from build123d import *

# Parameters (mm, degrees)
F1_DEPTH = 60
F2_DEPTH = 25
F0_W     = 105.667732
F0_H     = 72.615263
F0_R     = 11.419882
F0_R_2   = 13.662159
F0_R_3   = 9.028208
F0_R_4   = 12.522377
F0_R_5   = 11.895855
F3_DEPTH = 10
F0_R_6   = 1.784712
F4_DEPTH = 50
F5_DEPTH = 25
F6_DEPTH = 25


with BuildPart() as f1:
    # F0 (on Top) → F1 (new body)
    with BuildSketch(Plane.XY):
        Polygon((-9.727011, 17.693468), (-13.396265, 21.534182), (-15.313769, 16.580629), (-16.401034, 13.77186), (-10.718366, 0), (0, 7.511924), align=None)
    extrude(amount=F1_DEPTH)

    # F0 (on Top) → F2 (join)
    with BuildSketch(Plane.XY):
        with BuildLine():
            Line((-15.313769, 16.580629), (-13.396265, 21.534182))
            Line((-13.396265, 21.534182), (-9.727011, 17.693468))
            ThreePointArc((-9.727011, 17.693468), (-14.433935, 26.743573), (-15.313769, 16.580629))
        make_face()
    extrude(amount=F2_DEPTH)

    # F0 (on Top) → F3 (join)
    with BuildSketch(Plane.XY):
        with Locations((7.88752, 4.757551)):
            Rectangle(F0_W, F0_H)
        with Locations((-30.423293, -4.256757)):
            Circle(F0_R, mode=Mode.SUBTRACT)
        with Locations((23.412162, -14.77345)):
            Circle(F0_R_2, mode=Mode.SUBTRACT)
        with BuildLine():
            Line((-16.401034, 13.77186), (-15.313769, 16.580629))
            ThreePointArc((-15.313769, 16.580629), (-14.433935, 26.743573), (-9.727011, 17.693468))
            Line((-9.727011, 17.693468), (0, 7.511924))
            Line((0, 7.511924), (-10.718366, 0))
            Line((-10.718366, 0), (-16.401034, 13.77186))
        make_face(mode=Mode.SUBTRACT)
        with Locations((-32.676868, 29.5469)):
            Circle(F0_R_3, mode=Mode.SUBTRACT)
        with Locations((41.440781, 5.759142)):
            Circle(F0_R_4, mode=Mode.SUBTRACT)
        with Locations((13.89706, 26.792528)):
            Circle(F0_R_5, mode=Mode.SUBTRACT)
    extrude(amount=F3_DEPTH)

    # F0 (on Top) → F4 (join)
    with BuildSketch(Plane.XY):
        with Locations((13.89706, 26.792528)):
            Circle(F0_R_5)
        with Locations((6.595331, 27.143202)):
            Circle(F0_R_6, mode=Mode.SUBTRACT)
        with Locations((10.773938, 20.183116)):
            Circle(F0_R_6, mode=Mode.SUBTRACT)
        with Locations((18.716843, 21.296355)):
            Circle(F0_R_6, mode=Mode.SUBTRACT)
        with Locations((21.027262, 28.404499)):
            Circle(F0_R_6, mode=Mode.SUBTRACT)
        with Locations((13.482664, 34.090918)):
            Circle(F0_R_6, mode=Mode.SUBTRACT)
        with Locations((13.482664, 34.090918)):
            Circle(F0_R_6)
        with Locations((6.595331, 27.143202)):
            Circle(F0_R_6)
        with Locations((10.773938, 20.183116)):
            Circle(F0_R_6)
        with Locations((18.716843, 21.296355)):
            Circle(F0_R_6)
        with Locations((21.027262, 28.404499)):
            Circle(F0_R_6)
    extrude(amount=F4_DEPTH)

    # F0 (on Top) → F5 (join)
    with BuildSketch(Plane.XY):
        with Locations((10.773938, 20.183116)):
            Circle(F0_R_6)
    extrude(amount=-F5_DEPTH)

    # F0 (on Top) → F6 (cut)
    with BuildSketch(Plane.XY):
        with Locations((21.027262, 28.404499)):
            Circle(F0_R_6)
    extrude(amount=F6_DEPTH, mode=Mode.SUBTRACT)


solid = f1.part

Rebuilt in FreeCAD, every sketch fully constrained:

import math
import FreeCAD as App
import Part
import Sketcher
from FreeCAD import Vector
Q = App.Units.Quantity


def add_polygon(sketch, points):
    """Adds a closed chain of lines whose ends are joined by coincident constraints."""
    first, n = sketch.GeometryCount, len(points)
    for a, b in zip(points, points[1:] + points[:1]):
        sketch.addGeometry(Part.LineSegment(App.Vector(*a, 0), App.Vector(*b, 0)), False)
    for i in range(n):
        sketch.addConstraint(Sketcher.Constraint("Coincident", first + i, 2, first + (i + 1) % n, 1))

doc = App.newDocument("Part")
body = doc.addObject("PartDesign::Body", "Body")

# Sketch on XY plane
sketch1 = doc.addObject("Sketcher::SketchObject", "Sketch")
body.addObject(sketch1)
sketch1.AttachmentSupport = (doc.XY_Plane, [""])
sketch1.MapMode = "FlatFace"
add_polygon(sketch1, [(-9.727011, 17.693468), (-13.396265, 21.534182), (-15.313769, 16.580629), (-16.401034, 13.77186), (-10.718366, 0), (0, 7.511924)])  # lines 0-5
sketch1.addConstraint(Sketcher.Constraint("PointOnObject", 3, 2, -1))
sketch1.addConstraint(Sketcher.Constraint("PointOnObject", 4, 2, -2))
sketch1.addConstraint(Sketcher.Constraint("Parallel", 1, 2))
sketch1.addConstraint(Sketcher.Constraint("Parallel", 0, 5))
sketch1.addConstraint(Sketcher.Constraint("Equal", 0, 1))
sketch1.addConstraint(Sketcher.Constraint("DistanceX", 0, 2, 3, 2, Q("2.677899 mm")))
sketch1.addConstraint(Sketcher.Constraint("DistanceX", 1, 2, -1, 1, Q("15.313769 mm")))
sketch1.addConstraint(Sketcher.Constraint("DistanceY", -1, 1, 1, 2, Q("16.580629 mm")))
sketch1.addConstraint(Sketcher.Constraint("DistanceY", -1, 1, 2, 2, Q("13.77186 mm")))
sketch1.addConstraint(Sketcher.Constraint("DistanceX", 5, 2, -1, 1, Q("9.727011 mm")))
sketch1.addConstraint(Sketcher.Constraint("DistanceX", 2, 2, 0, 2, Q("3.004769 mm")))
sketch1.addConstraint(Sketcher.Constraint("DistanceY", 4, 2, 0, 2, Q("14.022258 mm")))
pad1 = doc.addObject("PartDesign::Pad", "Pad")
body.addObject(pad1)
pad1.Profile = sketch1
pad1.Length = 60

# Sketch on XY plane
sketch2 = doc.addObject("Sketcher::SketchObject", "Sketch001")
body.addObject(sketch2)
sketch2.AttachmentSupport = (doc.XY_Plane, [""])
sketch2.MapMode = "FlatFace"
sketch2.addGeometry(Part.LineSegment(Vector(-15.313769, 16.580629, 0), Vector(-13.396265, 21.534182, 0)), False)
sketch2.addGeometry(Part.LineSegment(Vector(-13.396265, 21.534182, 0), Vector(-9.727011, 17.693468, 0)), False)
sketch2.addGeometry(Part.ArcOfCircle(Part.Circle(Vector(-13.396265, 21.534182, 0), Vector(0, 0, 1), 5.311733), math.radians(-46.307894), math.radians(248.838745)), False)
sketch2.addConstraint(Sketcher.Constraint("Coincident", 0, 2, 1, 1))
sketch2.addConstraint(Sketcher.Constraint("Coincident", 1, 2, 2, 1))
sketch2.addConstraint(Sketcher.Constraint("Coincident", 2, 2, 0, 1))
sketch2.addConstraint(Sketcher.Constraint("Coincident", 0, 2, 2, 3))
sketch2.addConstraint(Sketcher.Constraint("Radius", 2, Q("5.311733 mm")))
sketch2.addConstraint(Sketcher.Constraint("DistanceX", 1, 2, -1, 1, Q("9.727011 mm")))
sketch2.addConstraint(Sketcher.Constraint("DistanceX", 2, 2, -1, 1, Q("15.313769 mm")))
sketch2.addConstraint(Sketcher.Constraint("DistanceY", -1, 1, 2, 2, Q("16.580629 mm")))
sketch2.addConstraint(Sketcher.Constraint("DistanceY", 2, 2, 1, 2, Q("1.112839 mm")))
pad2 = doc.addObject("PartDesign::Pad", "Pad001")
body.addObject(pad2)
pad2.Profile = sketch2
pad2.Length = 25

# Sketch on XY plane
sketch3 = doc.addObject("Sketcher::SketchObject", "Sketch002")
body.addObject(sketch3)
sketch3.AttachmentSupport = (doc.XY_Plane, [""])
sketch3.MapMode = "FlatFace"
add_polygon(sketch3, [(-44.946346, 41.065182), (-44.946346, -31.55008), (60.721386, -31.55008), (60.721386, 41.065182)])  # lines 0-3
sketch3.addGeometry(Part.Circle(Vector(-30.423293, -4.256757, 0), Vector(0, 0, 1), 11.419882), False)  # 4
sketch3.addGeometry(Part.Circle(Vector(23.412162, -14.77345, 0), Vector(0, 0, 1), 13.662159), False)  # 5
sketch3.addGeometry(Part.LineSegment(Vector(-10.718366, 0, 0), Vector(-16.401034, 13.77186, 0)), False)  # 6
sketch3.addGeometry(Part.LineSegment(Vector(-16.401034, 13.77186, 0), Vector(-15.313769, 16.580629, 0)), False)  # 7
sketch3.addGeometry(Part.ArcOfCircle(Part.Circle(Vector(-13.396265, 21.534182, 0), Vector(0, 0, 1), 5.311733), math.radians(-46.307894), math.radians(248.838745)), False)  # 8
sketch3.addGeometry(Part.LineSegment(Vector(-9.727011, 17.693468, 0), Vector(0, 7.511924, 0)), False)  # 9
sketch3.addGeometry(Part.LineSegment(Vector(0, 7.511924, 0), Vector(-10.718366, 0, 0)), False)  # 10
sketch3.addGeometry(Part.Circle(Vector(-32.676868, 29.5469, 0), Vector(0, 0, 1), 9.028208), False)  # 11
sketch3.addGeometry(Part.Circle(Vector(41.440781, 5.759142, 0), Vector(0, 0, 1), 12.522377), False)  # 12
sketch3.addGeometry(Part.Circle(Vector(13.89706, 26.792528, 0), Vector(0, 0, 1), 11.895855), False)  # 13
sketch3.addConstraint(Sketcher.Constraint("Coincident", 6, 2, 7, 1))
sketch3.addConstraint(Sketcher.Constraint("Coincident", 7, 2, 8, 2))
sketch3.addConstraint(Sketcher.Constraint("Coincident", 8, 1, 9, 1))
sketch3.addConstraint(Sketcher.Constraint("Coincident", 9, 2, 10, 1))
sketch3.addConstraint(Sketcher.Constraint("Coincident", 10, 2, 6, 1))
sketch3.addConstraint(Sketcher.Constraint("Vertical", 0))
sketch3.addConstraint(Sketcher.Constraint("Horizontal", 1))
sketch3.addConstraint(Sketcher.Constraint("Vertical", 2))
sketch3.addConstraint(Sketcher.Constraint("Horizontal", 3))
sketch3.addConstraint(Sketcher.Constraint("PointOnObject", 9, 2, -2))
sketch3.addConstraint(Sketcher.Constraint("PointOnObject", 10, 2, -1))
sketch3.addConstraint(Sketcher.Constraint("Diameter", 5, Q("27.324318 mm")))
sketch3.addConstraint(Sketcher.Constraint("Diameter", 13, Q("23.79171 mm")))
sketch3.addConstraint(Sketcher.Constraint("Diameter", 4, Q("22.839764 mm")))
sketch3.addConstraint(Sketcher.Constraint("Diameter", 11, Q("18.056416 mm")))
sketch3.addConstraint(Sketcher.Constraint("Diameter", 12, Q("25.044754 mm")))
sketch3.addConstraint(Sketcher.Constraint("Radius", 8, Q("5.311733 mm")))
sketch3.addConstraint(Sketcher.Constraint("DistanceY", 8, 3, 2, 2, Q("19.531 mm")))
sketch3.addConstraint(Sketcher.Constraint("DistanceX", 1, 1, 1, 2, Q("105.667732 mm")))
sketch3.addConstraint(Sketcher.Constraint("DistanceY", -1, 1, 11, 3, Q("29.5469 mm")))
sketch3.addConstraint(Sketcher.Constraint("DistanceY", 4, 3, 12, 3, Q("10.015899 mm")))
sketch3.addConstraint(Sketcher.Constraint("DistanceX", 13, 3, 5, 3, Q("9.515102 mm")))
sketch3.addConstraint(Sketcher.Constraint("DistanceX", 11, 3, 7, 2, Q("17.363099 mm")))
sketch3.addConstraint(Sketcher.Constraint("DistanceY", 7, 2, 13, 3, Q("10.211899 mm")))
sketch3.addConstraint(Sketcher.Constraint("DistanceY", 0, 2, 0, 1, Q("72.615263 mm")))
sketch3.addConstraint(Sketcher.Constraint("DistanceX", -1, 1, 5, 3, Q("23.412162 mm")))
sketch3.addConstraint(Sketcher.Constraint("DistanceY", 5, 3, -1, 1, Q("14.77345 mm")))
sketch3.addConstraint(Sketcher.Constraint("DistanceX", -1, 1, 12, 3, Q("41.440781 mm")))
sketch3.addConstraint(Sketcher.Constraint("DistanceY", -1, 1, 12, 3, Q("5.759142 mm")))
sketch3.addConstraint(Sketcher.Constraint("DistanceY", -1, 1, 13, 3, Q("26.792528 mm")))
sketch3.addConstraint(Sketcher.Constraint("DistanceY", 0, 2, -1, 1, Q("31.55008 mm")))
sketch3.addConstraint(Sketcher.Constraint("DistanceY", -1, 1, 6, 2, Q("13.77186 mm")))
sketch3.addConstraint(Sketcher.Constraint("DistanceX", 7, 2, -1, 1, Q("15.313769 mm")))
sketch3.addConstraint(Sketcher.Constraint("DistanceX", 8, 1, -1, 1, Q("9.727011 mm")))
sketch3.addConstraint(Sketcher.Constraint("DistanceX", 0, 2, 8, 3, Q("31.550081 mm")))
sketch3.addConstraint(Sketcher.Constraint("DistanceX", 4, 3, 1, 2, Q("91.144679 mm")))
sketch3.addConstraint(Sketcher.Constraint("DistanceX", 6, 2, 8, 3, Q("3.004769 mm")))
sketch3.addConstraint(Sketcher.Constraint("DistanceY", 9, 2, 8, 3, Q("14.022258 mm")))
sketch3.addConstraint(Sketcher.Constraint("Distance", 6, Q("14.898216 mm")))
pad3 = doc.addObject("PartDesign::Pad", "Pad002")
body.addObject(pad3)
pad3.Profile = sketch3
pad3.Length = 10

# Sketch on XY plane
sketch4 = doc.addObject("Sketcher::SketchObject", "Sketch003")
body.addObject(sketch4)
sketch4.AttachmentSupport = (doc.XY_Plane, [""])
sketch4.MapMode = "FlatFace"
sketch4.addGeometry(Part.Circle(Vector(13.89706, 26.792528, 0), Vector(0, 0, 1), 11.895855), False)
sketch4.addConstraint(Sketcher.Constraint("Diameter", 0, Q("23.79171 mm")))
sketch4.addConstraint(Sketcher.Constraint("DistanceX", -1, 1, 0, 3, Q("13.89706 mm")))
sketch4.addConstraint(Sketcher.Constraint("DistanceY", -1, 1, 0, 3, Q("26.792528 mm")))
pad4 = doc.addObject("PartDesign::Pad", "Pad003")
body.addObject(pad4)
pad4.Profile = sketch4
pad4.Length = 50

# Sketch on XY plane
sketch5 = doc.addObject("Sketcher::SketchObject", "Sketch004")
body.addObject(sketch5)
sketch5.AttachmentSupport = (doc.XY_Plane, [""])
sketch5.MapMode = "FlatFace"
sketch5.addGeometry(Part.Circle(Vector(10.773938, 20.183116, 0), Vector(0, 0, 1), 1.784712), False)
sketch5.addConstraint(Sketcher.Constraint("Diameter", 0, Q("3.569424 mm")))
sketch5.addConstraint(Sketcher.Constraint("DistanceX", -1, 1, 0, 3, Q("10.773938 mm")))
sketch5.addConstraint(Sketcher.Constraint("DistanceY", -1, 1, 0, 3, Q("20.183116 mm")))
pad5 = doc.addObject("PartDesign::Pad", "Pad004")
body.addObject(pad5)
pad5.Profile = sketch5
pad5.Length = 25
pad5.Reversed = True

# Sketch on XY plane
sketch6 = doc.addObject("Sketcher::SketchObject", "Sketch005")
body.addObject(sketch6)
sketch6.AttachmentSupport = (doc.XY_Plane, [""])
sketch6.MapMode = "FlatFace"
sketch6.addGeometry(Part.Circle(Vector(21.027262, 28.404499, 0), Vector(0, 0, 1), 1.784712), False)
sketch6.addConstraint(Sketcher.Constraint("Diameter", 0, Q("3.569424 mm")))
sketch6.addConstraint(Sketcher.Constraint("DistanceY", -1, 1, 0, 3, Q("28.404499 mm")))
sketch6.addConstraint(Sketcher.Constraint("DistanceX", -1, 1, 0, 3, Q("21.027262 mm")))
pocket1 = doc.addObject("PartDesign::Pocket", "Pocket")
body.addObject(pocket1)
pocket1.Profile = sketch6
pocket1.Length = 25
pocket1.Reversed = True

doc.recompute()
